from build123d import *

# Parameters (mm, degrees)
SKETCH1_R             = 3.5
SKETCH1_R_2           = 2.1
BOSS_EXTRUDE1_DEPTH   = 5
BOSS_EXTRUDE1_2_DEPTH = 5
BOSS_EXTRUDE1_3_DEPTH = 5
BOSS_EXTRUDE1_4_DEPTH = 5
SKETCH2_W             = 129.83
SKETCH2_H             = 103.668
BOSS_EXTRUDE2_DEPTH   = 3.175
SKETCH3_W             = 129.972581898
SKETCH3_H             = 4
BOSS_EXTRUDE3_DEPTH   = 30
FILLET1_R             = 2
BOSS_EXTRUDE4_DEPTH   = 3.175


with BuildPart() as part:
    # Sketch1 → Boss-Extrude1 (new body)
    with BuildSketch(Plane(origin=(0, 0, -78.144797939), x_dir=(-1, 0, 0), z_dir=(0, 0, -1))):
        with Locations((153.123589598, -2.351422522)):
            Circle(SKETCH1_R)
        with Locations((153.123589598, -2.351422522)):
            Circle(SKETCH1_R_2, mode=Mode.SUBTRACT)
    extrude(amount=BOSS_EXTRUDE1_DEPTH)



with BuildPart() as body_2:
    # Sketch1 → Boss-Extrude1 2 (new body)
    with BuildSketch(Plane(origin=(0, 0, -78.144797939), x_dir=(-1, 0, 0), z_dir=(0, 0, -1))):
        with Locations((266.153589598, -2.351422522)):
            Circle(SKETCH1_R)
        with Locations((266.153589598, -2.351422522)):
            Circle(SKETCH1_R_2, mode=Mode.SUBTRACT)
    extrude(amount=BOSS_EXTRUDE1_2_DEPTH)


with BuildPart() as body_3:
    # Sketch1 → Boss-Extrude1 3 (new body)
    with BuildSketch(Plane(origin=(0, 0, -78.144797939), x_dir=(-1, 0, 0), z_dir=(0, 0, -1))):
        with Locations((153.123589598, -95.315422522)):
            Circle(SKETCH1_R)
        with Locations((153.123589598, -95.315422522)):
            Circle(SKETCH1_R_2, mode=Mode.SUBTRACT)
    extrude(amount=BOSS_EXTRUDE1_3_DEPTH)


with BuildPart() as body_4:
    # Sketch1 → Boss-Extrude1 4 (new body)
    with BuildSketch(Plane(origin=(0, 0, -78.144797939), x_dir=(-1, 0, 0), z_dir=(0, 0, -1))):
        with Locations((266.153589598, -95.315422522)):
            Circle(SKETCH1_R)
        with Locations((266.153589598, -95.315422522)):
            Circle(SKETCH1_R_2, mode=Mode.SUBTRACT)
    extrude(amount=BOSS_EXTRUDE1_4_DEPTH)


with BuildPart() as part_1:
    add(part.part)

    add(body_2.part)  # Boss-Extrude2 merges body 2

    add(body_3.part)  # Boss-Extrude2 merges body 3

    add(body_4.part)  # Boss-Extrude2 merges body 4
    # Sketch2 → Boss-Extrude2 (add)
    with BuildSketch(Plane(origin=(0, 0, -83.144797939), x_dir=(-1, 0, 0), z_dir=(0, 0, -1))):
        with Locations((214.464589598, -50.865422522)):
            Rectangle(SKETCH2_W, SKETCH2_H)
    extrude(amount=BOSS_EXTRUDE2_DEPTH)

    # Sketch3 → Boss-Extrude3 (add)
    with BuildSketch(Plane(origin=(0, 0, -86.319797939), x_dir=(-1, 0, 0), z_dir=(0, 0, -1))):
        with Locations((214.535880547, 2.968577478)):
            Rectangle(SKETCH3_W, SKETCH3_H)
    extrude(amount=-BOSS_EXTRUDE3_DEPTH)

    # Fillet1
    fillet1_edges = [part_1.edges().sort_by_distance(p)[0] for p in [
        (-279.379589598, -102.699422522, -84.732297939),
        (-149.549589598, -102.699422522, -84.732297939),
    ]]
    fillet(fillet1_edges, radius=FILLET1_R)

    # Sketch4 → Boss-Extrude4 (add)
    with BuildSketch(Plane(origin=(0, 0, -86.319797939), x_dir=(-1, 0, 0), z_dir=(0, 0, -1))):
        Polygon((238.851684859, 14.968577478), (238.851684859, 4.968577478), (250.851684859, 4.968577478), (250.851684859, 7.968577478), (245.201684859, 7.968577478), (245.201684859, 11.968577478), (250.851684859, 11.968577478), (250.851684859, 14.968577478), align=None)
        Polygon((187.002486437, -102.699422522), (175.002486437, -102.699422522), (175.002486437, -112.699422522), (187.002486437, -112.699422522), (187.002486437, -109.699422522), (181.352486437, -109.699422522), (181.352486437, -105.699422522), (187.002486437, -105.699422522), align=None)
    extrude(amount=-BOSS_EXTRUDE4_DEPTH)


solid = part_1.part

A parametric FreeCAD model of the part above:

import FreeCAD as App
import Part
import Sketcher
from FreeCAD import Vector


def edges_at(feature, points):
    """Names of the edges that pass closest to the given points."""
    edges = feature.Shape.Edges
    near = lambda p: min(range(len(edges)), key=lambda i: edges[i].distToShape(Part.Vertex(*p))[0])
    return sorted({f"Edge{near(p) + 1}" for p in points})

doc = App.newDocument("Part")
params = doc.addObject("Spreadsheet::Sheet", "Params")
for row, (alias, value) in enumerate([
    ("sketch1_diameter", "7 mm"),
    ("sketch1_diameter2", "4.2 mm"),
    ("pad1_length", "5 mm"),
    ("sketch2_diameter", "7 mm"),
    ("sketch2_diameter2", "4.2 mm"),
    ("pad2_length", "5 mm"),
    ("sketch3_diameter", "7 mm"),
    ("sketch3_diameter2", "4.2 mm"),
    ("pad3_length", "5 mm"),
    ("sketch4_diameter", "7 mm"),
    ("sketch4_diameter2", "4.2 mm"),
    ("pad4_length", "5 mm"),
    ("sketch5_width", "129.83 mm"),
    ("pad5_length", "3.175 mm"),
    ("sketch6_height", "4 mm"),
    ("pad6_length", "30 mm"),
    ("fillet_radius", "2 mm"),
    ("sketch7_width", "12 mm"),
    ("sketch7_height", "10 mm"),
    ("sketch7_height2", "3 mm"),
    ("sketch7_width2", "5.65 mm"),
    ("pad7_length", "3.175 mm"),
], start=1):
    params.set(f"A{row}", alias)
    params.set(f"B{row}", "=" + value)
    params.setAlias(f"B{row}", alias)

body = doc.addObject("PartDesign::Body", "Body")

# Sketch on XY plane
sketch1 = body.newObject("Sketcher::SketchObject", "Sketch")
sketch1.AttachmentSupport = (doc.getObject("XY_Plane"), [""])
sketch1.MapMode = "FlatFace"
sketch1.AttachmentOffset = App.Placement(Vector(0, 0, -78.144798), App.Rotation())
sketch1.addGeometry(Part.Circle(Vector(-153.1, -2.4, 0), Vector(0, 0, 1), 3.5), False)
sketch1.addGeometry(Part.Circle(Vector(-153.1, -2.4, 0), Vector(0, 0, 1), 2.1), False)
sketch1.addConstraint(Sketcher.Constraint("Coincident", 1, 3, 0, 3))
sketch1.addConstraint(Sketcher.Constraint("Diameter", 0, 7.0))
sketch1.addConstraint(Sketcher.Constraint("Diameter", 1, 4.2))
sketch1.addConstraint(Sketcher.Constraint("DistanceX", 0, 3, -1, 1, 153.12359))
sketch1.addConstraint(Sketcher.Constraint("DistanceY", 0, 3, -1, 1, 2.351423))
sketch1.setExpression("Constraints[1]", "Params.sketch1_diameter")
sketch1.setExpression("Constraints[2]", "Params.sketch1_diameter2")
pad1 = body.newObject("PartDesign::Pad", "Pad")
pad1.Profile = sketch1
pad1.setExpression("Length", "Params.pad1_length")
pad1.Reversed = True
body2 = doc.addObject("PartDesign::Body", "Body001")

# Sketch on XY plane
sketch2 = body2.newObject("Sketcher::SketchObject", "Sketch001")
sketch2.AttachmentSupport = (doc.getObject("XY_Plane001"), [""])
sketch2.MapMode = "FlatFace"
sketch2.AttachmentOffset = App.Placement(Vector(0, 0, -78.144798), App.Rotation())
sketch2.addGeometry(Part.Circle(Vector(-266.2, -2.4, 0), Vector(0, 0, 1), 3.5), False)
sketch2.addGeometry(Part.Circle(Vector(-266.2, -2.4, 0), Vector(0, 0, 1), 2.1), False)
sketch2.addConstraint(Sketcher.Constraint("Coincident", 1, 3, 0, 3))
sketch2.addConstraint(Sketcher.Constraint("Diameter", 0, 7.0))
sketch2.addConstraint(Sketcher.Constraint("Diameter", 1, 4.2))
sketch2.addConstraint(Sketcher.Constraint("DistanceX", 0, 3, -1, 1, 266.15359))
sketch2.addConstraint(Sketcher.Constraint("DistanceY", 0, 3, -1, 1, 2.351423))
sketch2.setExpression("Constraints[1]", "Params.sketch2_diameter")
sketch2.setExpression("Constraints[2]", "Params.sketch2_diameter2")
pad2 = body2.newObject("PartDesign::Pad", "Pad001")
pad2.Profile = sketch2
pad2.setExpression("Length", "Params.pad2_length")
pad2.Reversed = True
body3 = doc.addObject("PartDesign::Body", "Body002")

# Sketch on XY plane
sketch3 = body3.newObject("Sketcher::SketchObject", "Sketch002")
sketch3.AttachmentSupport = (doc.getObject("XY_Plane002"), [""])
sketch3.MapMode = "FlatFace"
sketch3.AttachmentOffset = App.Placement(Vector(0, 0, -78.144798), App.Rotation())
sketch3.addGeometry(Part.Circle(Vector(-153.1, -95.3, 0), Vector(0, 0, 1), 3.5), False)
sketch3.addGeometry(Part.Circle(Vector(-153.1, -95.3, 0), Vector(0, 0, 1), 2.1), False)
sketch3.addConstraint(Sketcher.Constraint("Coincident", 1, 3, 0, 3))
sketch3.addConstraint(Sketcher.Constraint("Diameter", 0, 7.0))
sketch3.addConstraint(Sketcher.Constraint("Diameter", 1, 4.2))
sketch3.addConstraint(Sketcher.Constraint("DistanceX", 0, 3, -1, 1, 153.12359))
sketch3.addConstraint(Sketcher.Constraint("DistanceY", 0, 3, -1, 1, 95.315423))
sketch3.setExpression("Constraints[1]", "Params.sketch3_diameter")
sketch3.setExpression("Constraints[2]", "Params.sketch3_diameter2")
pad3 = body3.newObject("PartDesign::Pad", "Pad002")
pad3.Profile = sketch3
pad3.setExpression("Length", "Params.pad3_length")
pad3.Reversed = True
body4 = doc.addObject("PartDesign::Body", "Body003")

# Sketch on XY plane
sketch4 = body4.newObject("Sketcher::SketchObject", "Sketch003")
sketch4.AttachmentSupport = (doc.getObject("XY_Plane003"), [""])
sketch4.MapMode = "FlatFace"
sketch4.AttachmentOffset = App.Placement(Vector(0, 0, -78.144798), App.Rotation())
sketch4.addGeometry(Part.Circle(Vector(-266.2, -95.3, 0), Vector(0, 0, 1), 3.5), False)
sketch4.addGeometry(Part.Circle(Vector(-266.2, -95.3, 0), Vector(0, 0, 1), 2.1), False)
sketch4.addConstraint(Sketcher.Constraint("Coincident", 1, 3, 0, 3))
sketch4.addConstraint(Sketcher.Constraint("Diameter", 0, 7.0))
sketch4.addConstraint(Sketcher.Constraint("Diameter", 1, 4.2))
sketch4.addConstraint(Sketcher.Constraint("DistanceX", 0, 3, -1, 1, 266.15359))
sketch4.addConstraint(Sketcher.Constraint("DistanceY", 0, 3, -1, 1, 95.315423))
sketch4.setExpression("Constraints[1]", "Params.sketch4_diameter")
sketch4.setExpression("Constraints[2]", "Params.sketch4_diameter2")
pad4 = body4.newObject("PartDesign::Pad", "Pad003")
pad4.Profile = sketch4
pad4.setExpression("Length", "Params.pad4_length")
pad4.Reversed = True
body.AllowCompound = True
doc.recompute()

boolean = body.newObject("PartDesign::Boolean", "Boolean")
boolean.Type = "Fuse"
boolean.addObjects([body2])
doc.recompute()

boolean2 = body.newObject("PartDesign::Boolean", "Boolean001")
boolean2.Type = "Fuse"
boolean2.addObjects([body3])
doc.recompute()

boolean3 = body.newObject("PartDesign::Boolean", "Boolean002")
boolean3.Type = "Fuse"
boolean3.addObjects([body4])

# Sketch on XY plane
sketch5 = body.newObject("Sketcher::SketchObject", "Sketch004")
sketch5.AttachmentSupport = (doc.getObject("XY_Plane"), [""])
sketch5.MapMode = "FlatFace"
sketch5.AttachmentOffset = App.Placement(Vector(0, 0, -83.144798), App.Rotation())
sketch5.addGeometry(Part.LineSegment(Vector(-150, 1, 0), Vector(-150, -103, 0)), False)
sketch5.addGeometry(Part.LineSegment(Vector(-150, -103, 0), Vector(-279, -103, 0)), False)
sketch5.addGeometry(Part.LineSegment(Vector(-279, -103, 0), Vector(-279, 1, 0)), False)
sketch5.addGeometry(Part.LineSegment(Vector(-279, 1, 0), Vector(-150, 1, 0)), False)
sketch5.addConstraint(Sketcher.Constraint("Coincident", 0, 2, 1, 1))
sketch5.addConstraint(Sketcher.Constraint("Coincident", 1, 2, 2, 1))
sketch5.addConstraint(Sketcher.Constraint("Coincident", 2, 2, 3, 1))
sketch5.addConstraint(Sketcher.Constraint("Coincident", 3, 2, 0, 1))
sketch5.addConstraint(Sketcher.Constraint("Vertical", 0))
sketch5.addConstraint(Sketcher.Constraint("Horizontal", 1))
sketch5.addConstraint(Sketcher.Constraint("Vertical", 2))
sketch5.addConstraint(Sketcher.Constraint("Horizontal", 3))
sketch5.addConstraint(Sketcher.Constraint("DistanceX", 1, 2, 1, 1, 129.83))
sketch5.addConstraint(Sketcher.Constraint("DistanceY", 0, 2, 0, 1, 103.668))
sketch5.addConstraint(Sketcher.Constraint("DistanceX", 0, 2, -1, 1, 149.54959))
sketch5.addConstraint(Sketcher.Constraint("DistanceY", 0, 2, -1, 1, 102.699423))
sketch5.setExpression("Constraints[8]", "Params.sketch5_width")
pad5 = body.newObject("PartDesign::Pad", "Pad004")
pad5.Profile = sketch5
pad5.setExpression("Length", "Params.pad5_length")
pad5.Reversed = True

# Sketch on XY plane
sketch6 = body.newObject("Sketcher::SketchObject", "Sketch005")
sketch6.AttachmentSupport = (doc.getObject("XY_Plane"), [""])
sketch6.MapMode = "FlatFace"
sketch6.AttachmentOffset = App.Placement(Vector(0, 0, -86.319798), App.Rotation())
sketch6.addGeometry(Part.LineSegment(Vector(-149.5, 5, 0), Vector(-149.5, 1, 0)), False)
sketch6.addGeometry(Part.LineSegment(Vector(-149.5, 1, 0), Vector(-279.5, 1, 0)), False)
sketch6.addGeometry(Part.LineSegment(Vector(-279.5, 1, 0), Vector(-279.5, 5, 0)), False)
sketch6.addGeometry(Part.LineSegment(Vector(-279.5, 5, 0), Vector(-149.5, 5, 0)), False)
sketch6.addConstraint(Sketcher.Constraint("Coincident", 0, 2, 1, 1))
sketch6.addConstraint(Sketcher.Constraint("Coincident", 1, 2, 2, 1))
sketch6.addConstraint(Sketcher.Constraint("Coincident", 2, 2, 3, 1))
sketch6.addConstraint(Sketcher.Constraint("Coincident", 3, 2, 0, 1))
sketch6.addConstraint(Sketcher.Constraint("Vertical", 0))
sketch6.addConstraint(Sketcher.Constraint("Horizontal", 1))
sketch6.addConstraint(Sketcher.Constraint("Vertical", 2))
sketch6.addConstraint(Sketcher.Constraint("Horizontal", 3))
sketch6.addConstraint(Sketcher.Constraint("DistanceY", 0, 2, 0, 1, 4.0))
sketch6.addConstraint(Sketcher.Constraint("DistanceX", 1, 2, 1, 1, 129.972582))
sketch6.addConstraint(Sketcher.Constraint("DistanceX", 0, 2, -1, 1, 149.54959))
sketch6.addConstraint(Sketcher.Constraint("DistanceY", -1, 1, 0, 2, 0.968577))
sketch6.setExpression("Constraints[8]", "Params.sketch6_height")
pad6 = body.newObject("PartDesign::Pad", "Pad005")
pad6.Profile = sketch6
pad6.setExpression("Length", "Params.pad6_length")
doc.recompute()

fillet = body.newObject("PartDesign::Fillet", "Fillet")
fillet.Base = (pad6, edges_at(pad6, [(-279.38, -102.699, -84.732), (-149.55, -102.699, -84.732)]))
fillet.setExpression("Radius", "Params.fillet_radius")

# Sketch on XY plane
sketch7 = body.newObject("Sketcher::SketchObject", "Sketch006")
sketch7.AttachmentSupport = (doc.getObject("XY_Plane"), [""])
sketch7.MapMode = "FlatFace"
sketch7.AttachmentOffset = App.Placement(Vector(0, 0, -86.319798), App.Rotation())
sketch7.addGeometry(Part.LineSegment(Vector(-238.9, 15, 0), Vector(-238.9, 5, 0)), False)
sketch7.addGeometry(Part.LineSegment(Vector(-238.9, 5, 0), Vector(-250.9, 5, 0)), False)
sketch7.addGeometry(Part.LineSegment(Vector(-250.9, 5, 0), Vector(-250.9, 8, 0)), False)
sketch7.addGeometry(Part.LineSegment(Vector(-250.9, 8, 0), Vector(-245.2, 8, 0)), False)
sketch7.addGeometry(Part.LineSegment(Vector(-245.2, 8, 0), Vector(-245.2, 12, 0)), False)
sketch7.addGeometry(Part.LineSegment(Vector(-245.2, 12, 0), Vector(-250.9, 12, 0)), False)
sketch7.addGeometry(Part.LineSegment(Vector(-250.9, 12, 0), Vector(-250.9, 15, 0)), False)
sketch7.addGeometry(Part.LineSegment(Vector(-250.9, 15, 0), Vector(-238.9, 15, 0)), False)
sketch7.addGeometry(Part.LineSegment(Vector(-187, -102.7, 0), Vector(-175, -102.7, 0)), False)
sketch7.addGeometry(Part.LineSegment(Vector(-175, -102.7, 0), Vector(-175, -112.7, 0)), False)
sketch7.addGeometry(Part.LineSegment(Vector(-175, -112.7, 0), Vector(-187, -112.7, 0)), False)
sketch7.addGeometry(Part.LineSegment(Vector(-187, -112.7, 0), Vector(-187, -109.7, 0)), False)
sketch7.addGeometry(Part.LineSegment(Vector(-187, -109.7, 0), Vector(-181.4, -109.7, 0)), False)
sketch7.addGeometry(Part.LineSegment(Vector(-181.4, -109.7, 0), Vector(-181.4, -105.7, 0)), False)
sketch7.addGeometry(Part.LineSegment(Vector(-181.4, -105.7, 0), Vector(-187, -105.7, 0)), False)
sketch7.addGeometry(Part.LineSegment(Vector(-187, -105.7, 0), Vector(-187, -102.7, 0)), False)
sketch7.addConstraint(Sketcher.Constraint("Coincident", 0, 2, 1, 1))
sketch7.addConstraint(Sketcher.Constraint("Coincident", 1, 2, 2, 1))
sketch7.addConstraint(Sketcher.Constraint("Coincident", 2, 2, 3, 1))
sketch7.addConstraint(Sketcher.Constraint("Coincident", 3, 2, 4, 1))
sketch7.addConstraint(Sketcher.Constraint("Coincident", 4, 2, 5, 1))
sketch7.addConstraint(Sketcher.Constraint("Coincident", 5, 2, 6, 1))
sketch7.addConstraint(Sketcher.Constraint("Coincident", 6, 2, 7, 1))
sketch7.addConstraint(Sketcher.Constraint("Coincident", 7, 2, 0, 1))
sketch7.addConstraint(Sketcher.Constraint("Coincident", 8, 2, 9, 1))
sketch7.addConstraint(Sketcher.Constraint("Coincident", 9, 2, 10, 1))
sketch7.addConstraint(Sketcher.Constraint("Coincident", 10, 2, 11, 1))
sketch7.addConstraint(Sketcher.Constraint("Coincident", 11, 2, 12, 1))
sketch7.addConstraint(Sketcher.Constraint("Coincident", 12, 2, 13, 1))
sketch7.addConstraint(Sketcher.Constraint("Coincident", 13, 2, 14, 1))
sketch7.addConstraint(Sketcher.Constraint("Coincident", 14, 2, 15, 1))
sketch7.addConstraint(Sketcher.Constraint("Coincident", 15, 2, 8, 1))
sketch7.addConstraint(Sketcher.Constraint("Vertical", 0))
sketch7.addConstraint(Sketcher.Constraint("Horizontal", 1))
sketch7.addConstraint(Sketcher.Constraint("Vertical", 2))
sketch7.addConstraint(Sketcher.Constraint("Horizontal", 3))
sketch7.addConstraint(Sketcher.Constraint("Vertical", 4))
sketch7.addConstraint(Sketcher.Constraint("Horizontal", 5))
sketch7.addConstraint(Sketcher.Constraint("Vertical", 6))
sketch7.addConstraint(Sketcher.Constraint("Horizontal", 7))
sketch7.addConstraint(Sketcher.Constraint("Horizontal", 8))
sketch7.addConstraint(Sketcher.Constraint("Vertical", 9))
sketch7.addConstraint(Sketcher.Constraint("Horizontal", 10))
sketch7.addConstraint(Sketcher.Constraint("Vertical", 11))
sketch7.addConstraint(Sketcher.Constraint("Horizontal", 12))
sketch7.addConstraint(Sketcher.Constraint("Vertical", 13))
sketch7.addConstraint(Sketcher.Constraint("Horizontal", 14))
sketch7.addConstraint(Sketcher.Constraint("Vertical", 15))
sketch7.addConstraint(Sketcher.Constraint("Vertical", 2, 2, 5, 2))
sketch7.addConstraint(Sketcher.Constraint("Vertical", 11, 2, 14, 2))
sketch7.addConstraint(Sketcher.Constraint("Equal", 7, 8))
sketch7.addConstraint(Sketcher.Constraint("Equal", 5, 12))
sketch7.addConstraint(Sketcher.Constraint("Equal", 2, 6))
sketch7.addConstraint(Sketcher.Constraint("Equal", 0, 9))
sketch7.addConstraint(Sketcher.Constraint("Equal", 6, 11))
sketch7.addConstraint(Sketcher.Constraint("Equal", 4, 13))
sketch7.addConstraint(Sketcher.Constraint("DistanceX", 1, 2, 1, 1, 12.0))
sketch7.addConstraint(Sketcher.Constraint("DistanceY", 0, 2, 0, 1, 10.0))
sketch7.addConstraint(Sketcher.Constraint("DistanceY", 2, 1, 2, 2, 3.0))
sketch7.addConstraint(Sketcher.Constraint("DistanceX", 3, 1, 3, 2, 5.65))
sketch7.addConstraint(Sketcher.Constraint("DistanceY", 8, 2, 0, 2, 107.668))
sketch7.addConstraint(Sketcher.Constraint("DistanceX", 0, 2, 8, 2, 63.849198))
sketch7.addConstraint(Sketcher.Constraint("DistanceX", 0, 2, -1, 1, 238.851685))
sketch7.addConstraint(Sketcher.Constraint("DistanceY", -1, 1, 0, 2, 4.968577))
sketch7.setExpression("Constraints[40]", "Params.sketch7_width")
sketch7.setExpression("Constraints[41]", "Params.sketch7_height")
sketch7.setExpression("Constraints[42]", "Params.sketch7_height2")
sketch7.setExpression("Constraints[43]", "Params.sketch7_width2")
pad7 = body.newObject("PartDesign::Pad", "Pad006")
pad7.Profile = sketch7
pad7.setExpression("Length", "Params.pad7_length")

doc.recompute()
